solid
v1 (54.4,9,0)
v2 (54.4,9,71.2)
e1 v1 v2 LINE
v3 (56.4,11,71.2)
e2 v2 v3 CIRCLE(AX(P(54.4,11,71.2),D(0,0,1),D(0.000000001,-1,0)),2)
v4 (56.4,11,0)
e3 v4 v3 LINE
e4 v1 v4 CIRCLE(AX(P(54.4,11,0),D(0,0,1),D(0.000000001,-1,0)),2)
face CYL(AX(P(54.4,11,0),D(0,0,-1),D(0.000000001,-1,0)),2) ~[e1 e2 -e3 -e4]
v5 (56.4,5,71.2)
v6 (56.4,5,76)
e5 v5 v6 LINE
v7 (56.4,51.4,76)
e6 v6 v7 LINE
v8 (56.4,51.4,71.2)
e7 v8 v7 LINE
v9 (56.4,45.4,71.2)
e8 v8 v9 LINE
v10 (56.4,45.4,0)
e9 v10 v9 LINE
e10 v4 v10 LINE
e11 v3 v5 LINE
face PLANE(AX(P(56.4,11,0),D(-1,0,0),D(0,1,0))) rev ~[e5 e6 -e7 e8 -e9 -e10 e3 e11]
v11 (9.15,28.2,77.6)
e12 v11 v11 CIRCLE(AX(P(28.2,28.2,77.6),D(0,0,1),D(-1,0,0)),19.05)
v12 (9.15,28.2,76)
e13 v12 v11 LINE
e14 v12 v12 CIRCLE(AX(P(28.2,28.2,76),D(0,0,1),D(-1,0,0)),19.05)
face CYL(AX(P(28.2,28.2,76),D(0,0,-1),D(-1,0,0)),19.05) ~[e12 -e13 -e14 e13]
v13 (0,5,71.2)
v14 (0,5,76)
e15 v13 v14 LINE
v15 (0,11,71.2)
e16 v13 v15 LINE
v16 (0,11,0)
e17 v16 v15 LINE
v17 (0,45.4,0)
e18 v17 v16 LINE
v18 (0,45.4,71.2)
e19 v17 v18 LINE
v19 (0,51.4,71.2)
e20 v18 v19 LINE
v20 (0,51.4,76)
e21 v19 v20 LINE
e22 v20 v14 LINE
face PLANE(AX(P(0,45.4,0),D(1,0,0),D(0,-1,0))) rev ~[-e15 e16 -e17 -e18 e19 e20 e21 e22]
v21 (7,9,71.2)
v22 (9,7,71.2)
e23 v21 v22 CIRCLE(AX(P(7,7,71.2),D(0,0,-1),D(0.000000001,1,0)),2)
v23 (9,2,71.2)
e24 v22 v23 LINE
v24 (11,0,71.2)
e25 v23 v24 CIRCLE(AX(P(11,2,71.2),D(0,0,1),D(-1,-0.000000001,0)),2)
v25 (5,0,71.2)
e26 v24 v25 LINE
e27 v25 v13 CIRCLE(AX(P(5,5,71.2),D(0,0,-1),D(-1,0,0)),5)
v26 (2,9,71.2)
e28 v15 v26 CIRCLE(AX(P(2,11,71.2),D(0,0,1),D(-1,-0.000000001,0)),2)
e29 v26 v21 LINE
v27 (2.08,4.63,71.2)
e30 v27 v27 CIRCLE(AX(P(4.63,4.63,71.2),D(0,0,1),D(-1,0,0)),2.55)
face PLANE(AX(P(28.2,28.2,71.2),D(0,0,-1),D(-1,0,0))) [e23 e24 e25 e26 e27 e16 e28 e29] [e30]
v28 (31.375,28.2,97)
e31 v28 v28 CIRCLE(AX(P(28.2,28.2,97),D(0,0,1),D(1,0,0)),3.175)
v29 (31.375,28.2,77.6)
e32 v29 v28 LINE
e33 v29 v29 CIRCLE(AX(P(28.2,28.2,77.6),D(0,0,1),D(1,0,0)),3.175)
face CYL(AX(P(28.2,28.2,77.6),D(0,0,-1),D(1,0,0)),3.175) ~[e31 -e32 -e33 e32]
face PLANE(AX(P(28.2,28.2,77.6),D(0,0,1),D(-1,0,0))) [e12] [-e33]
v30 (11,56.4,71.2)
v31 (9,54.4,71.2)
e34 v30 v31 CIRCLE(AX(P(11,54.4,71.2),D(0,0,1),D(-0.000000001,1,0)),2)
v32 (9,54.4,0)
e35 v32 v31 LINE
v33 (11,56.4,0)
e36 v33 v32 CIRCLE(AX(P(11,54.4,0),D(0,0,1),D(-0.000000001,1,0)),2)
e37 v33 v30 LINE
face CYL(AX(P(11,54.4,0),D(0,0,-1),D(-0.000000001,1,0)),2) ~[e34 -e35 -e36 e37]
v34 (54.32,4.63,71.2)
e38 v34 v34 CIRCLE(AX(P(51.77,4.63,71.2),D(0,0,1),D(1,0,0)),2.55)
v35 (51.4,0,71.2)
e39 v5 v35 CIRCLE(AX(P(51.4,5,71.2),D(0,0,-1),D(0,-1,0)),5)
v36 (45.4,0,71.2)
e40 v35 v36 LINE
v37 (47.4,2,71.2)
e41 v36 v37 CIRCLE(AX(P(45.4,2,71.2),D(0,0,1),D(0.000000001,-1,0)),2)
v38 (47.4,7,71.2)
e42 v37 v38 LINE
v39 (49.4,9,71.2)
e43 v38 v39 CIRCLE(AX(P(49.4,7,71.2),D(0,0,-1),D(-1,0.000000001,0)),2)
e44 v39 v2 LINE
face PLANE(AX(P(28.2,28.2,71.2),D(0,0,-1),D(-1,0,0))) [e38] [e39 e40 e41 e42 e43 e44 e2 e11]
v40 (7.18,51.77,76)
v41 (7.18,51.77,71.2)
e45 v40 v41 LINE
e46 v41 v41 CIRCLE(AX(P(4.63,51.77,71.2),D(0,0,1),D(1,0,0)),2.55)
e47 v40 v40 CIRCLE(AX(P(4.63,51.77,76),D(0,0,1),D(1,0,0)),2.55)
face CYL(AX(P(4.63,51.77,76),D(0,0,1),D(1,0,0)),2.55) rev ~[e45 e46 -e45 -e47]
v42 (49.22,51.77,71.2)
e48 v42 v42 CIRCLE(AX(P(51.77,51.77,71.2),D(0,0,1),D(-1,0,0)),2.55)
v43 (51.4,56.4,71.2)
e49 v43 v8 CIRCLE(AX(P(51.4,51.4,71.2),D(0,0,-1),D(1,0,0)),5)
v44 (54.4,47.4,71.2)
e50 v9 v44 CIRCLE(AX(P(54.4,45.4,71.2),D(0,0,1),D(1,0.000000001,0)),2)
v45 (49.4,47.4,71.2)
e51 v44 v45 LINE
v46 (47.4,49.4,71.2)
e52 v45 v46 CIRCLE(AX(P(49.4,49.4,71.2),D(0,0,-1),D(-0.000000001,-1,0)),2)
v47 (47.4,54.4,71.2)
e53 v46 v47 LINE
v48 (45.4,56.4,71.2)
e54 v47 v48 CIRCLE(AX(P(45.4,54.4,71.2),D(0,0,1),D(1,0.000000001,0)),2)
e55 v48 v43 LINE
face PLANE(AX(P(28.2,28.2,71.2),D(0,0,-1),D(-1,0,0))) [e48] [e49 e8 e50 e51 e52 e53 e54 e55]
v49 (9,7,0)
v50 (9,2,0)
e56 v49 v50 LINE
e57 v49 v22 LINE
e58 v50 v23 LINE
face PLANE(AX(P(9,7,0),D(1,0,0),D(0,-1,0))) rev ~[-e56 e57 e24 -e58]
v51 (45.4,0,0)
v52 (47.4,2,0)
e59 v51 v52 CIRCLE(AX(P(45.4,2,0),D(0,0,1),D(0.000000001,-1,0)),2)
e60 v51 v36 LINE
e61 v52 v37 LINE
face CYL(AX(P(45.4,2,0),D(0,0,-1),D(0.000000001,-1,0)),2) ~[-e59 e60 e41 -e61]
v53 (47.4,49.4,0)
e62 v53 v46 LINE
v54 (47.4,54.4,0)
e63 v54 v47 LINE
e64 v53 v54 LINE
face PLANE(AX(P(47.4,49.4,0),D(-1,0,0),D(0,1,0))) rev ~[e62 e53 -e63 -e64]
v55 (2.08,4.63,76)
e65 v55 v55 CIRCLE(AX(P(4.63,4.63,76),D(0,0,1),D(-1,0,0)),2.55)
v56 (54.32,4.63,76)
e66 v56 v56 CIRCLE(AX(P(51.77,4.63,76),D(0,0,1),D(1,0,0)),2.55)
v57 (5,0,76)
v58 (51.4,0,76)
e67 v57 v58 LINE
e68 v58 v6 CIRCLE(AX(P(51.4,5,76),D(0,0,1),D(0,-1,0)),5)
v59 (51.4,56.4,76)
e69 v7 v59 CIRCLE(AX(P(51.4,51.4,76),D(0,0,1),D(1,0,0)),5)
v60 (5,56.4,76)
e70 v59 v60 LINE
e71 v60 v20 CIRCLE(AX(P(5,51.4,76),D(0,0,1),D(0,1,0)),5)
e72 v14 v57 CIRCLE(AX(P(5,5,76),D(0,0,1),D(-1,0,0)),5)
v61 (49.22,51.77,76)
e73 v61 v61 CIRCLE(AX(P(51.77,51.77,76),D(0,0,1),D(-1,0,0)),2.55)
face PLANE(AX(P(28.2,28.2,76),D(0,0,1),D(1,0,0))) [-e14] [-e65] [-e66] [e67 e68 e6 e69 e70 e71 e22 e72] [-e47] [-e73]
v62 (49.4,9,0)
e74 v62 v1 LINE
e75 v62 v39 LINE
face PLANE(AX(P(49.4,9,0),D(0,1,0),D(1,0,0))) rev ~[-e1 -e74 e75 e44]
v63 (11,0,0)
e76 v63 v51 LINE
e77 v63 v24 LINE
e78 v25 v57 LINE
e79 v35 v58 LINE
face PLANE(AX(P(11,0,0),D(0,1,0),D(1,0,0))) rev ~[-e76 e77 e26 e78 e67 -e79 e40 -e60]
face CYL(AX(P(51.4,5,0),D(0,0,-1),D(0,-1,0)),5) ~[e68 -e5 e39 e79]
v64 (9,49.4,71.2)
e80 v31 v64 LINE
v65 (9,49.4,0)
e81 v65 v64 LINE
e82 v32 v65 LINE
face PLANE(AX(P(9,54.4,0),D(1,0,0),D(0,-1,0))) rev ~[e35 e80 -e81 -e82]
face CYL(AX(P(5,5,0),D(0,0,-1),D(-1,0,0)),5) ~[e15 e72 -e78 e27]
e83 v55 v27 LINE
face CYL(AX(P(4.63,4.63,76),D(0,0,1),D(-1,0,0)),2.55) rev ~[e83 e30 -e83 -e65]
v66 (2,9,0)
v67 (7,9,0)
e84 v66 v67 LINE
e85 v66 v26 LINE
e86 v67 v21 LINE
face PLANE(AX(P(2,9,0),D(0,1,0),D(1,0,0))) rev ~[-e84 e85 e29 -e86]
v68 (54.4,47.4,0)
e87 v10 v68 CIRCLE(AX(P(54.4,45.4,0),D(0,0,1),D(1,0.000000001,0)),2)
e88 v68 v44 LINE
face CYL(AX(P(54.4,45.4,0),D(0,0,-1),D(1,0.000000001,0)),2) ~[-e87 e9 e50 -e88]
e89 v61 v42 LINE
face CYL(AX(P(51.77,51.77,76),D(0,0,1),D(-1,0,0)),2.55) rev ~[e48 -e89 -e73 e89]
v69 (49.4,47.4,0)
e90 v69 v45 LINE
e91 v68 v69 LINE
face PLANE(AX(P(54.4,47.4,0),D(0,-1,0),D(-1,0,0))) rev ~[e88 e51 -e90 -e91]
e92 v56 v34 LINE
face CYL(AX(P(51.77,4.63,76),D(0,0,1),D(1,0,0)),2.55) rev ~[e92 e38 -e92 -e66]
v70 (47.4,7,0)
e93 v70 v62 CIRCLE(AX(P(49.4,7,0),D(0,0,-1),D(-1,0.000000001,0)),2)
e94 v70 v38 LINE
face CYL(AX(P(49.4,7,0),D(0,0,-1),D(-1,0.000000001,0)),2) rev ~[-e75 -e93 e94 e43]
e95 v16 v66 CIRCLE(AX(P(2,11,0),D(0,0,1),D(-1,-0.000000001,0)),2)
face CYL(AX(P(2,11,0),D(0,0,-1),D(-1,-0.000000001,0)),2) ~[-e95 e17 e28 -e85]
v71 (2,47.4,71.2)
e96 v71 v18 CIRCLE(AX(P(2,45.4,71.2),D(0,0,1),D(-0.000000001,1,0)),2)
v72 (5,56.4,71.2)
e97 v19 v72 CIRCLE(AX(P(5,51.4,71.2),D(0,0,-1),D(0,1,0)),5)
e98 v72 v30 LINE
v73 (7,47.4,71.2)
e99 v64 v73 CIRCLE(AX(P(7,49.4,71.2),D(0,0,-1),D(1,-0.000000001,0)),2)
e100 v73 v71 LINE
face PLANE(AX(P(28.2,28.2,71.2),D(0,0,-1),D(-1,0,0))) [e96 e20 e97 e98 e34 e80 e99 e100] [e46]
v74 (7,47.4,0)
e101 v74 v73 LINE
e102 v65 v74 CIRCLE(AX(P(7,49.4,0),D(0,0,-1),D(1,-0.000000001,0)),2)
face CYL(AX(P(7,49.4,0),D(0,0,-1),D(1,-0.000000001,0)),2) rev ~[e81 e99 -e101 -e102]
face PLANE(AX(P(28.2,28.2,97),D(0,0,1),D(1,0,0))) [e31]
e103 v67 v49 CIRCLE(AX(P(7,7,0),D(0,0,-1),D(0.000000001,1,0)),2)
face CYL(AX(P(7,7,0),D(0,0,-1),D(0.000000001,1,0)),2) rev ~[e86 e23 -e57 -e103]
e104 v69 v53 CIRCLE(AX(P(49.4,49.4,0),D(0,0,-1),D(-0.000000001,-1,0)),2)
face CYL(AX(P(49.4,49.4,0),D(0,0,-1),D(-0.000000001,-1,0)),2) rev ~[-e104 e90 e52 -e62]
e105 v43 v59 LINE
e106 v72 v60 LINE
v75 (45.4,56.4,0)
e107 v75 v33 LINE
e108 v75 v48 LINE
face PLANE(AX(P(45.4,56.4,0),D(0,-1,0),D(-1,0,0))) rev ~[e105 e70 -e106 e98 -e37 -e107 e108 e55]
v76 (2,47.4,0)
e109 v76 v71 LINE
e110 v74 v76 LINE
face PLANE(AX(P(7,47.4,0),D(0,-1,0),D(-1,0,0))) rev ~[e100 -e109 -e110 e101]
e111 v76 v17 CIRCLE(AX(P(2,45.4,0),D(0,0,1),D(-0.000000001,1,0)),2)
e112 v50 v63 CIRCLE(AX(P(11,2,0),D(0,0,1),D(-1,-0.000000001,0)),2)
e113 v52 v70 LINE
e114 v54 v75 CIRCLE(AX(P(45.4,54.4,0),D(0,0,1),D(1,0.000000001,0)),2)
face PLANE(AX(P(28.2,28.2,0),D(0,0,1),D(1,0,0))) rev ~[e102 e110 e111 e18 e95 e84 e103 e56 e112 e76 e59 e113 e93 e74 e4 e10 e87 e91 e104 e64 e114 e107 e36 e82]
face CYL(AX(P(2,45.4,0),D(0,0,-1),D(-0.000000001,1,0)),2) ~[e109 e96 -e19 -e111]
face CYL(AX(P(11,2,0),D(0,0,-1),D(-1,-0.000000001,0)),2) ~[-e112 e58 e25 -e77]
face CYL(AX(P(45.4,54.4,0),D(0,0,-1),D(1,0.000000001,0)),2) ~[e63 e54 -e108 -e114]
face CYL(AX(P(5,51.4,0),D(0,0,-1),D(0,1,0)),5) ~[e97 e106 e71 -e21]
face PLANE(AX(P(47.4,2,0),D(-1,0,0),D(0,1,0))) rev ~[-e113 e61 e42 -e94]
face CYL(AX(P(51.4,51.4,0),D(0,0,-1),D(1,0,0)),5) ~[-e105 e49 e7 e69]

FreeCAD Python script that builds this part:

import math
import FreeCAD as App
import Part
import Sketcher
from FreeCAD import Vector


def add_polygon(sketch, points):
    """Adds a closed chain of lines whose ends are joined by coincident constraints."""
    first, n = sketch.GeometryCount, len(points)
    for a, b in zip(points, points[1:] + points[:1]):
        sketch.addGeometry(Part.LineSegment(App.Vector(*a, 0), App.Vector(*b, 0)), False)
    for i in range(n):
        sketch.addConstraint(Sketcher.Constraint("Coincident", first + i, 2, first + (i + 1) % n, 1))

doc = App.newDocument("Part")
body = doc.addObject("PartDesign::Body", "Body")

# Sketch on XY plane
sketch1 = body.newObject("Sketcher::SketchObject", "Sketch")
sketch1.AttachmentSupport = (doc.getObject("XY_Plane"), [""])
sketch1.MapMode = "FlatFace"
sketch1.addGeometry([
    Part.LineSegment(Vector(5, 0, 0), Vector(51, 0, 0)),  # 0
    Part.ArcOfCircle(Part.Circle(Vector(51, 5, 0), Vector(0, 0, 1), 5), math.radians(-90), math.radians(0)),  # 1
    Part.LineSegment(Vector(56, 5, 0), Vector(56, 51, 0)),  # 2
    Part.ArcOfCircle(Part.Circle(Vector(51, 51, 0), Vector(0, 0, 1), 5), math.radians(0), math.radians(90)),  # 3
    Part.LineSegment(Vector(51, 56, 0), Vector(5, 56, 0)),  # 4
    Part.ArcOfCircle(Part.Circle(Vector(5, 51, 0), Vector(0, 0, 1), 5), math.radians(90), math.radians(180)),  # 5
    Part.LineSegment(Vector(0, 51, 0), Vector(0, 5, 0)),  # 6
    Part.ArcOfCircle(Part.Circle(Vector(5, 5, 0), Vector(0, 0, 1), 5), math.radians(180), math.radians(270)),  # 7
], False)
sketch1.addConstraint([
    Sketcher.Constraint("Tangent", 0, 2, 1, 1),
    Sketcher.Constraint("Tangent", 1, 2, 2, 1),
    Sketcher.Constraint("Tangent", 2, 2, 3, 1),
    Sketcher.Constraint("Tangent", 3, 2, 4, 1),
    Sketcher.Constraint("Tangent", 4, 2, 5, 1),
    Sketcher.Constraint("Tangent", 5, 2, 6, 1),
    Sketcher.Constraint("Tangent", 6, 2, 7, 1),
    Sketcher.Constraint("Tangent", 7, 2, 0, 1),
    Sketcher.Constraint("Horizontal", 0),
    Sketcher.Constraint("Vertical", 2),
    Sketcher.Constraint("Horizontal", 4),
    Sketcher.Constraint("Vertical", 6),
    Sketcher.Constraint("Equal", 1, 3),
    Sketcher.Constraint("Equal", 3, 5),
    Sketcher.Constraint("Equal", 5, 7),
    Sketcher.Constraint("PointOnObject", 0, 2, -1),
    Sketcher.Constraint("PointOnObject", 5, 2, -2),
    Sketcher.Constraint("Equal", 4, 2),
    Sketcher.Constraint("Radius", 1, 5.0),
    Sketcher.Constraint("DistanceX", 0, 1, 0, 2, 46.4),
])
pad1 = body.newObject("PartDesign::Pad", "Pad")
pad1.Profile = sketch1
pad1.Length = 76

# Sketch on XY plane
sketch2 = body.newObject("Sketcher::SketchObject", "Sketch001")
sketch2.AttachmentSupport = (doc.getObject("XY_Plane"), [""])
sketch2.MapMode = "FlatFace"
sketch2.AttachmentOffset = App.Placement(Vector(0, 0, 76), App.Rotation())
sketch2.addGeometry(Part.Circle(Vector(28, 28, 0), Vector(0, 0, 1), 19), False)
sketch2.addConstraint([
    Sketcher.Constraint("Diameter", 0, 38.1),
    Sketcher.Constraint("DistanceX", -1, 1, 0, 3, 28.2),
    Sketcher.Constraint("DistanceY", -1, 1, 0, 3, 28.2),
])
pad2 = body.newObject("PartDesign::Pad", "Pad001")
pad2.Profile = sketch2
pad2.Length = 1.6

# Sketch on XY plane
sketch3 = body.newObject("Sketcher::SketchObject", "Sketch002")
sketch3.AttachmentSupport = (doc.getObject("XY_Plane"), [""])
sketch3.MapMode = "FlatFace"
add_polygon(sketch3, [(68.5, 68.5), (68.5, -12.1), (-12.1, -12.1), (-12.1, 68.5)])  # lines 0-3
sketch3.addGeometry(Part.ArcOfCircle(Part.Circle(Vector(54.4, 11, 0), Vector(0, 0, 1), 2), math.radians(-90), math.radians(0)), False)  # 4
sketch3.addGeometry(Part.LineSegment(Vector(56.4, 11, 0), Vector(56.4, 45.4, 0)), False)  # 5
sketch3.addGeometry(Part.ArcOfCircle(Part.Circle(Vector(54.4, 45.4, 0), Vector(0, 0, 1), 2), math.radians(0), math.radians(90)), False)  # 6
sketch3.addGeometry(Part.LineSegment(Vector(54.4, 47.4, 0), Vector(49.4, 47.4, 0)), False)  # 7
sketch3.addGeometry(Part.ArcOfCircle(Part.Circle(Vector(49.4, 49.4, 0), Vector(0, 0, 1), 2), math.radians(-180), math.radians(-90)), False)  # 8
sketch3.addGeometry(Part.LineSegment(Vector(47.4, 49.4, 0), Vector(47.4, 54.4, 0)), False)  # 9
sketch3.addGeometry(Part.ArcOfCircle(Part.Circle(Vector(45.4, 54.4, 0), Vector(0, 0, 1), 2), math.radians(0), math.radians(90)), False)  # 10
sketch3.addGeometry(Part.LineSegment(Vector(45.4, 56.4, 0), Vector(11, 56.4, 0)), False)  # 11
sketch3.addGeometry(Part.ArcOfCircle(Part.Circle(Vector(11, 54.4, 0), Vector(0, 0, 1), 2), math.radians(90), math.radians(180)), False)  # 12
sketch3.addGeometry(Part.LineSegment(Vector(9, 54.4, 0), Vector(9, 49.4, 0)), False)  # 13
sketch3.addGeometry(Part.ArcOfCircle(Part.Circle(Vector(7, 49.4, 0), Vector(0, 0, 1), 2), math.radians(-90), math.radians(0)), False)  # 14
sketch3.addGeometry(Part.LineSegment(Vector(7, 47.4, 0), Vector(2, 47.4, 0)), False)  # 15
sketch3.addGeometry(Part.ArcOfCircle(Part.Circle(Vector(2, 45.4, 0), Vector(0, 0, 1), 2), math.radians(90), math.radians(180)), False)  # 16
sketch3.addGeometry(Part.LineSegment(Vector(0, 45.4, 0), Vector(0, 11, 0)), False)  # 17
sketch3.addGeometry(Part.ArcOfCircle(Part.Circle(Vector(2, 11, 0), Vector(0, 0, 1), 2), math.radians(-180), math.radians(-90)), False)  # 18
sketch3.addGeometry(Part.LineSegment(Vector(2, 9, 0), Vector(7, 9, 0)), False)  # 19
sketch3.addGeometry(Part.ArcOfCircle(Part.Circle(Vector(7, 7, 0), Vector(0, 0, 1), 2), math.radians(0), math.radians(90)), False)  # 20
sketch3.addGeometry(Part.LineSegment(Vector(9, 7, 0), Vector(9, 2, 0)), False)  # 21
sketch3.addGeometry(Part.ArcOfCircle(Part.Circle(Vector(11, 2, 0), Vector(0, 0, 1), 2), math.radians(-180), math.radians(-90)), False)  # 22
sketch3.addGeometry(Part.LineSegment(Vector(11, 0, 0), Vector(45.4, 0, 0)), False)  # 23
sketch3.addGeometry(Part.ArcOfCircle(Part.Circle(Vector(45.4, 2, 0), Vector(0, 0, 1), 2), math.radians(-90), math.radians(0)), False)  # 24
sketch3.addGeometry(Part.LineSegment(Vector(47.4, 2, 0), Vector(47.4, 7, 0)), False)  # 25
sketch3.addGeometry(Part.ArcOfCircle(Part.Circle(Vector(49.4, 7, 0), Vector(0, 0, 1), 2), math.radians(90), math.radians(180)), False)  # 26
sketch3.addGeometry(Part.LineSegment(Vector(49.4, 9, 0), Vector(54.4, 9, 0)), False)  # 27
sketch3.addConstraint([
    Sketcher.Constraint("Tangent", 4, 2, 5, 1),
    Sketcher.Constraint("Tangent", 5, 2, 6, 1),
    Sketcher.Constraint("Tangent", 6, 2, 7, 1),
    Sketcher.Constraint("Tangent", 7, 2, 8, 2),
    Sketcher.Constraint("Tangent", 8, 1, 9, 1),
    Sketcher.Constraint("Tangent", 9, 2, 10, 1),
    Sketcher.Constraint("Tangent", 10, 2, 11, 1),
    Sketcher.Constraint("Tangent", 11, 2, 12, 1),
    Sketcher.Constraint("Tangent", 12, 2, 13, 1),
    Sketcher.Constraint("Tangent", 13, 2, 14, 2),
    Sketcher.Constraint("Tangent", 14, 1, 15, 1),
    Sketcher.Constraint("Tangent", 15, 2, 16, 1),
    Sketcher.Constraint("Tangent", 16, 2, 17, 1),
    Sketcher.Constraint("Tangent", 17, 2, 18, 1),
    Sketcher.Constraint("Tangent", 18, 2, 19, 1),
    Sketcher.Constraint("Tangent", 19, 2, 20, 2),
    Sketcher.Constraint("Tangent", 20, 1, 21, 1),
    Sketcher.Constraint("Tangent", 21, 2, 22, 1),
    Sketcher.Constraint("Tangent", 22, 2, 23, 1),
    Sketcher.Constraint("Tangent", 23, 2, 24, 1),
    Sketcher.Constraint("Tangent", 24, 2, 25, 1),
    Sketcher.Constraint("Tangent", 25, 2, 26, 2),
    Sketcher.Constraint("Tangent", 26, 1, 27, 1),
    Sketcher.Constraint("Tangent", 27, 2, 4, 1),
    Sketcher.Constraint("Vertical", 0),
    Sketcher.Constraint("Horizontal", 1),
    Sketcher.Constraint("Vertical", 2),
    Sketcher.Constraint("Horizontal", 3),
    Sketcher.Constraint("Vertical", 5),
    Sketcher.Constraint("Horizontal", 7),
    Sketcher.Constraint("Vertical", 9),
    Sketcher.Constraint("Horizontal", 11),
    Sketcher.Constraint("Vertical", 13),
    Sketcher.Constraint("Horizontal", 15),
    Sketcher.Constraint("Vertical", 17),
    Sketcher.Constraint("Horizontal", 19),
    Sketcher.Constraint("Vertical", 21),
    Sketcher.Constraint("Horizontal", 23),
    Sketcher.Constraint("Vertical", 25),
    Sketcher.Constraint("Horizontal", 27),
    Sketcher.Constraint("Equal", 4, 6),
    Sketcher.Constraint("Equal", 6, 8),
    Sketcher.Constraint("Equal", 8, 10),
    Sketcher.Constraint("Equal", 10, 12),
    Sketcher.Constraint("Equal", 12, 14),
    Sketcher.Constraint("Equal", 14, 16),
    Sketcher.Constraint("Equal", 16, 18),
    Sketcher.Constraint("Equal", 18, 20),
    Sketcher.Constraint("Equal", 20, 22),
    Sketcher.Constraint("Equal", 22, 24),
    Sketcher.Constraint("Equal", 24, 26),
    Sketcher.Constraint("PointOnObject", 16, 2, -2),
    Sketcher.Constraint("PointOnObject", 22, 2, -1),
    Sketcher.Constraint("Horizontal", 8, 3, 14, 3),
    Sketcher.Constraint("Horizontal", 4, 3, 18, 3),
    Sketcher.Constraint("Vertical", 14, 3, 20, 3),
    Sketcher.Constraint("Vertical", 10, 3, 24, 3),
    Sketcher.Constraint("Equal", 7, 15),
    Sketcher.Constraint("Equal", 3, 0),
    Sketcher.Constraint("Equal", 23, 5),
    Sketcher.Constraint("Equal", 27, 9),
    Sketcher.Constraint("Equal", 13, 21),
    Sketcher.Constraint("Radius", 4, 2.0),
    Sketcher.Constraint("DistanceX", 7, 2, 7, 1, 5.0),
    Sketcher.Constraint("DistanceX", 11, 2, 11, 1, 34.4),
    Sketcher.Constraint("DistanceX", 1, 2, 1, 1, 80.656),
    Sketcher.Constraint("DistanceX", -1, 1, 0, 2, 68.528),
    Sketcher.Constraint("DistanceY", 0, 2, -1, 1, 12.128),
])
pocket1 = body.newObject("PartDesign::Pocket", "Pocket")
pocket1.Profile = sketch3
pocket1.Length = 71.2
pocket1.Reversed = True

# Sketch on XY plane
sketch4 = body.newObject("Sketcher::SketchObject", "Sketch003")
sketch4.AttachmentSupport = (doc.getObject("XY_Plane"), [""])
sketch4.MapMode = "FlatFace"
sketch4.AttachmentOffset = App.Placement(Vector(0, 0, 76), App.Rotation())
sketch4.addGeometry([
    Part.Circle(Vector(4.6, 51.8, 0), Vector(0, 0, 1), 2.5),
    Part.Circle(Vector(51.8, 51.8, 0), Vector(0, 0, 1), 2.5),
    Part.Circle(Vector(4.6, 4.6, 0), Vector(0, 0, 1), 2.5),
    Part.Circle(Vector(51.8, 4.6, 0), Vector(0, 0, 1), 2.5),
], False)
sketch4.addConstraint([
    Sketcher.Constraint("Equal", 0, 1),
    Sketcher.Constraint("Equal", 1, 2),
    Sketcher.Constraint("Equal", 2, 3),
    Sketcher.Constraint("Horizontal", 0, 3, 1, 3),
    Sketcher.Constraint("Horizontal", 2, 3, 3, 3),
    Sketcher.Constraint("Vertical", 0, 3, 2, 3),
    Sketcher.Constraint("Vertical", 1, 3, 3, 3),
    Sketcher.Constraint("Diameter", 0, 5.1),
    Sketcher.Constraint("DistanceX", -1, 1, 0, 3, 4.63),
    Sketcher.Constraint("DistanceY", -1, 1, 0, 3, 51.77),
    Sketcher.Constraint("DistanceX", -1, 1, 1, 3, 51.77),
    Sketcher.Constraint("DistanceY", -1, 1, 2, 3, 4.63),
])
pocket2 = body.newObject("PartDesign::Pocket", "Pocket001")
pocket2.Profile = sketch4
pocket2.Length = 71.2

# Sketch on XY plane
sketch5 = body.newObject("Sketcher::SketchObject", "Sketch004")
sketch5.AttachmentSupport = (doc.getObject("XY_Plane"), [""])
sketch5.MapMode = "FlatFace"
sketch5.AttachmentOffset = App.Placement(Vector(0, 0, 77.6), App.Rotation())
sketch5.addGeometry(Part.Circle(Vector(28.2, 28.2, 0), Vector(0, 0, 1), 3.2), False)
sketch5.addConstraint([
    Sketcher.Constraint("Diameter", 0, 6.35),
    Sketcher.Constraint("DistanceX", -1, 1, 0, 3, 28.2),
    Sketcher.Constraint("DistanceY", -1, 1, 0, 3, 28.2),
])
pad3 = body.newObject("PartDesign::Pad", "Pad002")
pad3.Profile = sketch5
pad3.Length = 19.4

doc.recompute()
